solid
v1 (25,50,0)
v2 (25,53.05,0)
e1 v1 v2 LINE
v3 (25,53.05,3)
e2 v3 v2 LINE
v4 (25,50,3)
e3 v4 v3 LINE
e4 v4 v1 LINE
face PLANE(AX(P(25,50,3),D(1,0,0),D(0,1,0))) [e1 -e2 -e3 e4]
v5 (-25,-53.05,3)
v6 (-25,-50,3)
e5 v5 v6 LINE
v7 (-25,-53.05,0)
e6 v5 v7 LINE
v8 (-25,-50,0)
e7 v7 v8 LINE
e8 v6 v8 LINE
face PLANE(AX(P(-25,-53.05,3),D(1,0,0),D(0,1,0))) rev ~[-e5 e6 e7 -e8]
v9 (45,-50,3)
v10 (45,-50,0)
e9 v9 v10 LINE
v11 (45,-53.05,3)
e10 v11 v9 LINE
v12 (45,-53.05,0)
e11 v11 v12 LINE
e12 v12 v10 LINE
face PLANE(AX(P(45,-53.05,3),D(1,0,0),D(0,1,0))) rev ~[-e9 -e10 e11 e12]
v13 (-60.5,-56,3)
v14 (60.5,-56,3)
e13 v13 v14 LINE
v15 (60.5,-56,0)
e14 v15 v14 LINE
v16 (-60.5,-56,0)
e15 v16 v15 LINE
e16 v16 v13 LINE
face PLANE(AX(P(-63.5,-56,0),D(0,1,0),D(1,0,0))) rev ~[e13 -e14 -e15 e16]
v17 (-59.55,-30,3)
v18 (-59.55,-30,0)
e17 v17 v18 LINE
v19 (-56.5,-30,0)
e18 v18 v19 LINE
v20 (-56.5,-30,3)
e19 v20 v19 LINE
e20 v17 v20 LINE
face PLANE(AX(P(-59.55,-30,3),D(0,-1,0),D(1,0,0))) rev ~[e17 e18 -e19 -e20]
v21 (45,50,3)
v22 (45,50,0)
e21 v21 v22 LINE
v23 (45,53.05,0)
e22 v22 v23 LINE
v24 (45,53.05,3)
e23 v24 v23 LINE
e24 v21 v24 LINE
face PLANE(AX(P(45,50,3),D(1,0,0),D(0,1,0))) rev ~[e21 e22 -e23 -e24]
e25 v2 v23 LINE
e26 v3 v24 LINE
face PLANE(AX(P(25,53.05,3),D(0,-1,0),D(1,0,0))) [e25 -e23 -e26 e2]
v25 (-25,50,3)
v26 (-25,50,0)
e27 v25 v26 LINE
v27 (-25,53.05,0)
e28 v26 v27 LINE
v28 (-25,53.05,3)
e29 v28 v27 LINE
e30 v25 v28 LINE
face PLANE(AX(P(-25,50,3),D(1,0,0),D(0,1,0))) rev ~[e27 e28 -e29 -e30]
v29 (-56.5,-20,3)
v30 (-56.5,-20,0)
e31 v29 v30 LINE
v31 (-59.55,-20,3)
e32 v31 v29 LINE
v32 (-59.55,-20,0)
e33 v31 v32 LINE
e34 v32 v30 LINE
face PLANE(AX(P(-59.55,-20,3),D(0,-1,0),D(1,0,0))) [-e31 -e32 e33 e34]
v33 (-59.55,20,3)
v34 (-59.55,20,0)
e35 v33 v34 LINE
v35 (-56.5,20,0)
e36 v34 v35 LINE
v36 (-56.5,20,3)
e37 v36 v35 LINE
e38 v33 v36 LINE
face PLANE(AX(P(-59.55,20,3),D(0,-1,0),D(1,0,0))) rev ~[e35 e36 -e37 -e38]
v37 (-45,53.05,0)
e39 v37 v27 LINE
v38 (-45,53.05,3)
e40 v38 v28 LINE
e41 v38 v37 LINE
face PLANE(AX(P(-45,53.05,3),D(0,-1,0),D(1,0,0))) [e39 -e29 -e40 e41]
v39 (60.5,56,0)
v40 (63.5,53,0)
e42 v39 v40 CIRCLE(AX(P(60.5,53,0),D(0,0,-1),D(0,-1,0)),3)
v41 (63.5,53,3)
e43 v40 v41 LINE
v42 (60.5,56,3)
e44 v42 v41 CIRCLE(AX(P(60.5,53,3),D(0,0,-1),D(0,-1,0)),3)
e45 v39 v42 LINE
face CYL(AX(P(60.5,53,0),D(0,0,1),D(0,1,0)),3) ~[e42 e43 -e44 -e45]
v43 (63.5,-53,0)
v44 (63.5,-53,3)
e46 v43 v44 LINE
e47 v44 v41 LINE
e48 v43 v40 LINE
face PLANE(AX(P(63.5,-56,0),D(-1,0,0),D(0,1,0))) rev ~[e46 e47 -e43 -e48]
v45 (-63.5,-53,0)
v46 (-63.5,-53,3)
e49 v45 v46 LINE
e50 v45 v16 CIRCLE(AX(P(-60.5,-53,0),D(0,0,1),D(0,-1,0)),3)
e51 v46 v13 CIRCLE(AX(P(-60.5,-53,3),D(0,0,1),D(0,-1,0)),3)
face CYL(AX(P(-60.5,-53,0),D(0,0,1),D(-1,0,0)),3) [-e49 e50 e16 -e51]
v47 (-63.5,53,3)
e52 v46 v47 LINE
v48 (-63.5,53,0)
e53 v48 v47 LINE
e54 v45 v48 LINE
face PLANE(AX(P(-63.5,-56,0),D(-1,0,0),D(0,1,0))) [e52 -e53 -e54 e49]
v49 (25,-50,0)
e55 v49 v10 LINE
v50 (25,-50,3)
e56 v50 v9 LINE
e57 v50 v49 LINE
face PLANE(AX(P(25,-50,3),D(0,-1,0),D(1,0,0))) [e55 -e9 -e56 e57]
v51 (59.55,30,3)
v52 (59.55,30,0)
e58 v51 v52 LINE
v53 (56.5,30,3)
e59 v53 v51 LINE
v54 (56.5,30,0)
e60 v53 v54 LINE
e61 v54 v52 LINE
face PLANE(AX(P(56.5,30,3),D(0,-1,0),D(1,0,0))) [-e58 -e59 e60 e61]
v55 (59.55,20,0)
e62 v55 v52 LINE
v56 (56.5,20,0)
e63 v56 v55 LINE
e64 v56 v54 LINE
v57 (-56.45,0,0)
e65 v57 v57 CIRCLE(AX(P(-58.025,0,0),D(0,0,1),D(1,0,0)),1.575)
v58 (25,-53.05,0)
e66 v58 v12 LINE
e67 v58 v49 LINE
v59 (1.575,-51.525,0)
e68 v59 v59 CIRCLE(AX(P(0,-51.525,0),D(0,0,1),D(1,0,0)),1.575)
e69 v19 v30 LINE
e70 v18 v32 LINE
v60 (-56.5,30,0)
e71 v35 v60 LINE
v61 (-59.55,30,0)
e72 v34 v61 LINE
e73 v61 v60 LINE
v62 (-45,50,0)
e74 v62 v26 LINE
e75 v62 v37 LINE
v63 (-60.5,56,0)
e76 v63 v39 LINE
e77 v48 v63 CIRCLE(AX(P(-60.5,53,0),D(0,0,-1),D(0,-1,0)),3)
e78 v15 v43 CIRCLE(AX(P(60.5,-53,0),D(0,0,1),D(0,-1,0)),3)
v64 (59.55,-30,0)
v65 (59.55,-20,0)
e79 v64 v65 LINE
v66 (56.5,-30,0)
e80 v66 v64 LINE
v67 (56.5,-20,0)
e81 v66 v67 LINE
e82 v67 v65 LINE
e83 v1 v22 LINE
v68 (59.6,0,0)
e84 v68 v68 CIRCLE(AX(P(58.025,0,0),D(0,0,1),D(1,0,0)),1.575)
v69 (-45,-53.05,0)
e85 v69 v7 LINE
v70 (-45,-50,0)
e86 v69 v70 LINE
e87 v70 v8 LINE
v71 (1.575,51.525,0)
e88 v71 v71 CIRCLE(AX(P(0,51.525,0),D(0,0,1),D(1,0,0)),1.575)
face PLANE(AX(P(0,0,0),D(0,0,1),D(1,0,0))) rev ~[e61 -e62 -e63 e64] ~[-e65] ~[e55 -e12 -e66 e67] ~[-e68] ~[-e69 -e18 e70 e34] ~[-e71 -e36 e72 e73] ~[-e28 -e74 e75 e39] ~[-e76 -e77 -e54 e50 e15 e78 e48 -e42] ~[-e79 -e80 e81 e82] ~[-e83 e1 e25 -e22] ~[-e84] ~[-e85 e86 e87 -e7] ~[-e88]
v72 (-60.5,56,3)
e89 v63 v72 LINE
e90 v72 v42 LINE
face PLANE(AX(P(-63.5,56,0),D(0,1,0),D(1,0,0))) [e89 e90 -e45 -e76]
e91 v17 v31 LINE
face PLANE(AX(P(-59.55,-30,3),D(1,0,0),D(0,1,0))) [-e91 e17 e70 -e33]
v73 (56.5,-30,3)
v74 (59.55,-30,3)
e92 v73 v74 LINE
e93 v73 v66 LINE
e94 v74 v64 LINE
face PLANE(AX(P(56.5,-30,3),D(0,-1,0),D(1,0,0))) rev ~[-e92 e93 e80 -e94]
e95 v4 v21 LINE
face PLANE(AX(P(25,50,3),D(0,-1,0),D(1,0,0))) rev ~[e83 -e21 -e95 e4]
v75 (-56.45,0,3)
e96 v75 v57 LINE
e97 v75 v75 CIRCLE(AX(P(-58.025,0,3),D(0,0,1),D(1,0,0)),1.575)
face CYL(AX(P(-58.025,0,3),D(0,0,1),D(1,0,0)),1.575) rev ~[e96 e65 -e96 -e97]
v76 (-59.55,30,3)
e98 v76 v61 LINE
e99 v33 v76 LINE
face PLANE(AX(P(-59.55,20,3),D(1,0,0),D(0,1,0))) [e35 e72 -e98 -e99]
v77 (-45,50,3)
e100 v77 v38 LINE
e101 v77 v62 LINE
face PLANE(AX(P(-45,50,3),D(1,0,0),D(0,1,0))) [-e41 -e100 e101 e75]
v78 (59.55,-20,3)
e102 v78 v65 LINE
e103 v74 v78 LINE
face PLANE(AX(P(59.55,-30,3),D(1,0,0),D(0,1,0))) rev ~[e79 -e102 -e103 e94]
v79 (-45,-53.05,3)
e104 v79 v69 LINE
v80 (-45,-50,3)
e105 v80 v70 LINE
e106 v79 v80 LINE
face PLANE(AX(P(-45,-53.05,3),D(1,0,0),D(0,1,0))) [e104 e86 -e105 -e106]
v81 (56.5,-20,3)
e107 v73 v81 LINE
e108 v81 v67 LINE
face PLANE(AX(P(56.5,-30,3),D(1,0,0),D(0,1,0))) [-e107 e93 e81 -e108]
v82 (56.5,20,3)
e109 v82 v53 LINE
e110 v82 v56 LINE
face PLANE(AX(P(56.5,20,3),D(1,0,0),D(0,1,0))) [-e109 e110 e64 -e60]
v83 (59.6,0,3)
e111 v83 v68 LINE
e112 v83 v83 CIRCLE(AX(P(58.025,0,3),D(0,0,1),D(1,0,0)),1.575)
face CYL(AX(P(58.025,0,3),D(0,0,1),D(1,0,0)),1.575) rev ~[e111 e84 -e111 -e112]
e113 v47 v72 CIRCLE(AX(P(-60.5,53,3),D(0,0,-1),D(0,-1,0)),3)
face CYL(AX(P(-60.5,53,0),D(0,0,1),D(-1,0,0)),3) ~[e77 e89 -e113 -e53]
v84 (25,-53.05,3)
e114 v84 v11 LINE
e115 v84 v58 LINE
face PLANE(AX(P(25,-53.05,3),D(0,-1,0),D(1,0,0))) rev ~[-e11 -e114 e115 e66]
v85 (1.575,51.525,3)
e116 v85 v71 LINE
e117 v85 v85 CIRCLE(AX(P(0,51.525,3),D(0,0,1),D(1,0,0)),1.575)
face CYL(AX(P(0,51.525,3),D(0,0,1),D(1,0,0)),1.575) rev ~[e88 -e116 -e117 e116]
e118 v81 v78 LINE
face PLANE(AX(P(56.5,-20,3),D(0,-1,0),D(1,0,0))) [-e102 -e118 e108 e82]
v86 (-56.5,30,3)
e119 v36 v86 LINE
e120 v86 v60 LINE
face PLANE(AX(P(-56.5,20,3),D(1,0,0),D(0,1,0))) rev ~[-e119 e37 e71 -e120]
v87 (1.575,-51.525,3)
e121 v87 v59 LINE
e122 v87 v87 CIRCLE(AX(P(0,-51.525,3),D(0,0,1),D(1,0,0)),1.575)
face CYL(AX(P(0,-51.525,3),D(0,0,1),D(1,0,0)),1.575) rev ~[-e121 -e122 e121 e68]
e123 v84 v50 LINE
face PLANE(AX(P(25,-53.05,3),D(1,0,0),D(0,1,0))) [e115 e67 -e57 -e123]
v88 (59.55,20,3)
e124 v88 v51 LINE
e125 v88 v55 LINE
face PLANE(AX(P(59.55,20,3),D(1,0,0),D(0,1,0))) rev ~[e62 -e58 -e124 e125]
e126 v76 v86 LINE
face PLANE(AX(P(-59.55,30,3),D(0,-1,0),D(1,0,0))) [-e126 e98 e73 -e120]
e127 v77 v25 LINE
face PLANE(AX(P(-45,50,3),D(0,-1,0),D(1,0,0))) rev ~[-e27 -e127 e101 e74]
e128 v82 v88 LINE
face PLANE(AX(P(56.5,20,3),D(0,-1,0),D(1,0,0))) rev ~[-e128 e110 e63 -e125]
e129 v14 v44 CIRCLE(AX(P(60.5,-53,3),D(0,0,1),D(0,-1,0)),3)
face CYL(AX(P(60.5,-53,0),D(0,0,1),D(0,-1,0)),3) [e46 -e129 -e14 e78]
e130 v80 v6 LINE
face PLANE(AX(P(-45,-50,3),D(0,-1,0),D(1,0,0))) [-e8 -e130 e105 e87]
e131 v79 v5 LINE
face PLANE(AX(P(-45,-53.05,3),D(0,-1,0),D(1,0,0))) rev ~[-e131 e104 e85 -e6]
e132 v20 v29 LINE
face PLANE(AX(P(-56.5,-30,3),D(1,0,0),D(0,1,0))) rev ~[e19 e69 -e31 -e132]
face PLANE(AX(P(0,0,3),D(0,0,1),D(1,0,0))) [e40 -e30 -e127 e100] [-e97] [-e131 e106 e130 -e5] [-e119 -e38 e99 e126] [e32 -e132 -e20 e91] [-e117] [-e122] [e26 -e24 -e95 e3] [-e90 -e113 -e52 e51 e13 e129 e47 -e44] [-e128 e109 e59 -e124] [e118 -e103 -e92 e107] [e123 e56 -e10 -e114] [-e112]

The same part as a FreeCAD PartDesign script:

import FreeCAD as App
import Part
import Sketcher


def edges_at(feature, points):
    """Names of the edges that pass closest to the given points."""
    edges = feature.Shape.Edges
    near = lambda p: min(range(len(edges)), key=lambda i: edges[i].distToShape(Part.Vertex(*p))[0])
    return sorted({f"Edge{near(p) + 1}" for p in points})

doc = App.newDocument("Part")
params = doc.addObject("Spreadsheet::Sheet", "Params")
for row, (alias, value) in enumerate([
    ("sketch1_width", "127 mm"),
    ("sketch1_height", "112 mm"),
    ("pad1_length", "3 mm"),
    ("sketch2_diameter", "3.15 mm"),
    ("sketch2_width", "20 mm"),
    ("sketch2_height", "10 mm"),
    ("sketch2_width2", "3.05 mm"),
    ("fillet_radius", "3 mm"),
], start=1):
    params.set(f"A{row}", alias)
    params.set(f"B{row}", "=" + value)
    params.setAlias(f"B{row}", alias)

body = doc.addObject("PartDesign::Body", "Body")

# Sketch on XY plane
sketch1 = body.newObject("Sketcher::SketchObject", "Sketch")
sketch1.AttachmentSupport = (doc.getObject("XY_Plane"), [""])
sketch1.MapMode = "FlatFace"
sketch1.addGeometry([
    Part.LineSegment(App.Vector(-63.5, 56, 0), App.Vector(-63.5, -56, 0)),
    Part.LineSegment(App.Vector(-63.5, -56, 0), App.Vector(63.5, -56, 0)),
    Part.LineSegment(App.Vector(63.5, -56, 0), App.Vector(63.5, 56, 0)),
    Part.LineSegment(App.Vector(63.5, 56, 0), App.Vector(-63.5, 56, 0)),
], False)
sketch1.addConstraint([
    Sketcher.Constraint("Coincident", 0, 2, 1, 1),
    Sketcher.Constraint("Coincident", 1, 2, 2, 1),
    Sketcher.Constraint("Coincident", 2, 2, 3, 1),
    Sketcher.Constraint("Coincident", 3, 2, 0, 1),
    Sketcher.Constraint("Vertical", 0),
    Sketcher.Constraint("Horizontal", 1),
    Sketcher.Constraint("Vertical", 2),
    Sketcher.Constraint("Horizontal", 3),
    Sketcher.Constraint("Symmetric", 0, 2, 2, 2, -1, 1),
    Sketcher.Constraint("DistanceX", 1, 1, 1, 2, 127.0),
    Sketcher.Constraint("DistanceY", 0, 2, 0, 1, 112.0),
])
sketch1.setExpression("Constraints[9]", "Params.sketch1_width")
sketch1.setExpression("Constraints[10]", "Params.sketch1_height")
pad1 = body.newObject("PartDesign::Pad", "Pad")
pad1.Profile = sketch1
pad1.setExpression("Length", "Params.pad1_length")

# Sketch on XY plane
sketch2 = body.newObject("Sketcher::SketchObject", "Sketch001")
sketch2.AttachmentSupport = (doc.getObject("XY_Plane"), [""])
sketch2.MapMode = "FlatFace"
sketch2.AttachmentOffset = App.Placement(App.Vector(0, 0, 3), App.Rotation())
sketch2.addGeometry([
    Part.LineSegment(App.Vector(-59.55, 30, 0), App.Vector(-59.55, 20, 0)),  # 0
    Part.LineSegment(App.Vector(-59.55, 20, 0), App.Vector(-56.5, 20, 0)),  # 1
    Part.LineSegment(App.Vector(-56.5, 20, 0), App.Vector(-56.5, 30, 0)),  # 2
    Part.LineSegment(App.Vector(-56.5, 30, 0), App.Vector(-59.55, 30, 0)),  # 3
    Part.LineSegment(App.Vector(-59.55, -20, 0), App.Vector(-59.55, -30, 0)),  # 4
    Part.LineSegment(App.Vector(-59.55, -30, 0), App.Vector(-56.5, -30, 0)),  # 5
    Part.LineSegment(App.Vector(-56.5, -30, 0), App.Vector(-56.5, -20, 0)),  # 6
    Part.LineSegment(App.Vector(-56.5, -20, 0), App.Vector(-59.55, -20, 0)),  # 7
    Part.Circle(App.Vector(-58.025, 0, 0), App.Vector(0, 0, 1), 1.575),  # 8
    Part.LineSegment(App.Vector(56.5, -20, 0), App.Vector(56.5, -30, 0)),  # 9
    Part.LineSegment(App.Vector(56.5, -30, 0), App.Vector(59.55, -30, 0)),  # 10
    Part.LineSegment(App.Vector(59.55, -30, 0), App.Vector(59.55, -20, 0)),  # 11
    Part.LineSegment(App.Vector(59.55, -20, 0), App.Vector(56.5, -20, 0)),  # 12
    Part.LineSegment(App.Vector(56.5, 30, 0), App.Vector(56.5, 20, 0)),  # 13
    Part.LineSegment(App.Vector(56.5, 20, 0), App.Vector(59.55, 20, 0)),  # 14
    Part.LineSegment(App.Vector(59.55, 20, 0), App.Vector(59.55, 30, 0)),  # 15
    Part.LineSegment(App.Vector(59.55, 30, 0), App.Vector(56.5, 30, 0)),  # 16
    Part.Circle(App.Vector(58.025, 0, 0), App.Vector(0, 0, 1), 1.575),  # 17
    Part.LineSegment(App.Vector(-45, -50, 0), App.Vector(-45, -53.05, 0)),  # 18
    Part.LineSegment(App.Vector(-45, -53.05, 0), App.Vector(-25, -53.05, 0)),  # 19
    Part.LineSegment(App.Vector(-25, -53.05, 0), App.Vector(-25, -50, 0)),  # 20
    Part.LineSegment(App.Vector(-25, -50, 0), App.Vector(-45, -50, 0)),  # 21
    Part.LineSegment(App.Vector(25, -50, 0), App.Vector(25, -53.05, 0)),  # 22
    Part.LineSegment(App.Vector(25, -53.05, 0), App.Vector(45, -53.05, 0)),  # 23
    Part.LineSegment(App.Vector(45, -53.05, 0), App.Vector(45, -50, 0)),  # 24
    Part.LineSegment(App.Vector(45, -50, 0), App.Vector(25, -50, 0)),  # 25
    Part.Circle(App.Vector(0, -51.525, 0), App.Vector(0, 0, 1), 1.575),  # 26
    Part.LineSegment(App.Vector(-45, 53.05, 0), App.Vector(-45, 50, 0)),  # 27
    Part.LineSegment(App.Vector(-45, 50, 0), App.Vector(-25, 50, 0)),  # 28
    Part.LineSegment(App.Vector(-25, 50, 0), App.Vector(-25, 53.05, 0)),  # 29
    Part.LineSegment(App.Vector(-25, 53.05, 0), App.Vector(-45, 53.05, 0)),  # 30
    Part.LineSegment(App.Vector(25, 53.05, 0), App.Vector(25, 50, 0)),  # 31
    Part.LineSegment(App.Vector(25, 50, 0), App.Vector(45, 50, 0)),  # 32
    Part.LineSegment(App.Vector(45, 50, 0), App.Vector(45, 53.05, 0)),  # 33
    Part.LineSegment(App.Vector(45, 53.05, 0), App.Vector(25, 53.05, 0)),  # 34
    Part.Circle(App.Vector(0, 51.525, 0), App.Vector(0, 0, 1), 1.575),  # 35
], False)
sketch2.addConstraint([
    Sketcher.Constraint("Coincident", 0, 2, 1, 1),
    Sketcher.Constraint("Coincident", 1, 2, 2, 1),
    Sketcher.Constraint("Coincident", 2, 2, 3, 1),
    Sketcher.Constraint("Coincident", 3, 2, 0, 1),
    Sketcher.Constraint("Coincident", 4, 2, 5, 1),
    Sketcher.Constraint("Coincident", 5, 2, 6, 1),
    Sketcher.Constraint("Coincident", 6, 2, 7, 1),
    Sketcher.Constraint("Coincident", 7, 2, 4, 1),
    Sketcher.Constraint("Coincident", 9, 2, 10, 1),
    Sketcher.Constraint("Coincident", 10, 2, 11, 1),
    Sketcher.Constraint("Coincident", 11, 2, 12, 1),
    Sketcher.Constraint("Coincident", 12, 2, 9, 1),
    Sketcher.Constraint("Coincident", 13, 2, 14, 1),
    Sketcher.Constraint("Coincident", 14, 2, 15, 1),
    Sketcher.Constraint("Coincident", 15, 2, 16, 1),
    Sketcher.Constraint("Coincident", 16, 2, 13, 1),
    Sketcher.Constraint("Coincident", 18, 2, 19, 1),
    Sketcher.Constraint("Coincident", 19, 2, 20, 1),
    Sketcher.Constraint("Coincident", 20, 2, 21, 1),
    Sketcher.Constraint("Coincident", 21, 2, 18, 1),
    Sketcher.Constraint("Coincident", 22, 2, 23, 1),
    Sketcher.Constraint("Coincident", 23, 2, 24, 1),
    Sketcher.Constraint("Coincident", 24, 2, 25, 1),
    Sketcher.Constraint("Coincident", 25, 2, 22, 1),
    Sketcher.Constraint("Coincident", 27, 2, 28, 1),
    Sketcher.Constraint("Coincident", 28, 2, 29, 1),
    Sketcher.Constraint("Coincident", 29, 2, 30, 1),
    Sketcher.Constraint("Coincident", 30, 2, 27, 1),
    Sketcher.Constraint("Coincident", 31, 2, 32, 1),
    Sketcher.Constraint("Coincident", 32, 2, 33, 1),
    Sketcher.Constraint("Coincident", 33, 2, 34, 1),
    Sketcher.Constraint("Coincident", 34, 2, 31, 1),
    Sketcher.Constraint("Vertical", 0),
    Sketcher.Constraint("Horizontal", 1),
    Sketcher.Constraint("Vertical", 2),
    Sketcher.Constraint("Horizontal", 3),
    Sketcher.Constraint("Vertical", 4),
    Sketcher.Constraint("Horizontal", 5),
    Sketcher.Constraint("Vertical", 6),
    Sketcher.Constraint("Horizontal", 7),
    Sketcher.Constraint("Vertical", 9),
    Sketcher.Constraint("Horizontal", 10),
    Sketcher.Constraint("Vertical", 11),
    Sketcher.Constraint("Horizontal", 12),
    Sketcher.Constraint("Vertical", 13),
    Sketcher.Constraint("Horizontal", 14),
    Sketcher.Constraint("Vertical", 15),
    Sketcher.Constraint("Horizontal", 16),
    Sketcher.Constraint("Vertical", 18),
    Sketcher.Constraint("Horizontal", 19),
    Sketcher.Constraint("Vertical", 20),
    Sketcher.Constraint("Horizontal", 21),
    Sketcher.Constraint("Vertical", 22),
    Sketcher.Constraint("Horizontal", 23),
    Sketcher.Constraint("Vertical", 24),
    Sketcher.Constraint("Horizontal", 25),
    Sketcher.Constraint("Vertical", 27),
    Sketcher.Constraint("Horizontal", 28),
    Sketcher.Constraint("Vertical", 29),
    Sketcher.Constraint("Horizontal", 30),
    Sketcher.Constraint("Vertical", 31),
    Sketcher.Constraint("Horizontal", 32),
    Sketcher.Constraint("Vertical", 33),
    Sketcher.Constraint("Horizontal", 34),
    Sketcher.Constraint("Equal", 8, 17),
    Sketcher.Constraint("Equal", 17, 26),
    Sketcher.Constraint("Equal", 26, 35),
    Sketcher.Constraint("Symmetric", 8, 3, 17, 3, -1, 1),
    Sketcher.Constraint("Symmetric", 26, 3, 35, 3, -1, 1),
    Sketcher.Constraint("Symmetric", 2, 2, 9, 2, -1, 1),
    Sketcher.Constraint("Symmetric", 0, 2, 11, 2, -1, 1),
    Sketcher.Constraint("Symmetric", 6, 2, 13, 2, -1, 1),
    Sketcher.Constraint("Symmetric", 4, 2, 15, 2, -1, 1),
    Sketcher.Constraint("Symmetric", 24, 2, 27, 2, -1, 1),
    Sketcher.Constraint("Symmetric", 22, 2, 29, 2, -1, 1),
    Sketcher.Constraint("Symmetric", 20, 2, 31, 2, -1, 1),
    Sketcher.Constraint("Symmetric", 18, 2, 33, 2, -1, 1),
    Sketcher.Constraint("Symmetric", 5, 2, 9, 2, -2),
    Sketcher.Constraint("Symmetric", 7, 2, 11, 2, -2),
    Sketcher.Constraint("Symmetric", 19, 2, 22, 2, -2),
    Sketcher.Constraint("Symmetric", 21, 2, 24, 2, -2),
    Sketcher.Constraint("PointOnObject", 8, 3, -1),
    Sketcher.Constraint("PointOnObject", 26, 3, -2),
    Sketcher.Constraint("Equal", 16, 18),
    Sketcher.Constraint("Diameter", 8, 3.15),
    Sketcher.Constraint("DistanceX", 19, 1, 19, 2, 20.0),
    Sketcher.Constraint("DistanceY", 0, 2, 0, 1, 10.0),
    Sketcher.Constraint("DistanceY", -1, 1, 0, 2, 20.0),
    Sketcher.Constraint("DistanceX", 18, 2, -1, 1, 45.0),
    Sketcher.Constraint("DistanceY", 20, 2, -1, 1, 50.0),
    Sketcher.Constraint("DistanceX", 5, 2, 9, 2, 113.0),
    Sketcher.Constraint("DistanceX", 1, 1, 1, 2, 3.05),
    Sketcher.Constraint("DistanceX", 8, 3, 17, 3, 116.05),
    Sketcher.Constraint("DistanceY", 26, 3, 35, 3, 103.05),
])
sketch2.setExpression("Constraints[84]", "Params.sketch2_diameter")
sketch2.setExpression("Constraints[85]", "Params.sketch2_width")
sketch2.setExpression("Constraints[86]", "Params.sketch2_height")
sketch2.setExpression("Constraints[91]", "Params.sketch2_width2")
pocket1 = body.newObject("PartDesign::Pocket", "Pocket")
pocket1.Profile = sketch2
pocket1.Type = "ThroughAll"
doc.recompute()

fillet = body.newObject("PartDesign::Fillet", "Fillet")
fillet.Base = (pocket1, edges_at(pocket1, [
    (63.5, -56, 1.5),
    (-63.5, -56, 1.5),
    (-63.5, 56, 1.5),
    (63.5, 56, 1.5),
]))
fillet.setExpression("Radius", "Params.fillet_radius")

doc.recompute()
